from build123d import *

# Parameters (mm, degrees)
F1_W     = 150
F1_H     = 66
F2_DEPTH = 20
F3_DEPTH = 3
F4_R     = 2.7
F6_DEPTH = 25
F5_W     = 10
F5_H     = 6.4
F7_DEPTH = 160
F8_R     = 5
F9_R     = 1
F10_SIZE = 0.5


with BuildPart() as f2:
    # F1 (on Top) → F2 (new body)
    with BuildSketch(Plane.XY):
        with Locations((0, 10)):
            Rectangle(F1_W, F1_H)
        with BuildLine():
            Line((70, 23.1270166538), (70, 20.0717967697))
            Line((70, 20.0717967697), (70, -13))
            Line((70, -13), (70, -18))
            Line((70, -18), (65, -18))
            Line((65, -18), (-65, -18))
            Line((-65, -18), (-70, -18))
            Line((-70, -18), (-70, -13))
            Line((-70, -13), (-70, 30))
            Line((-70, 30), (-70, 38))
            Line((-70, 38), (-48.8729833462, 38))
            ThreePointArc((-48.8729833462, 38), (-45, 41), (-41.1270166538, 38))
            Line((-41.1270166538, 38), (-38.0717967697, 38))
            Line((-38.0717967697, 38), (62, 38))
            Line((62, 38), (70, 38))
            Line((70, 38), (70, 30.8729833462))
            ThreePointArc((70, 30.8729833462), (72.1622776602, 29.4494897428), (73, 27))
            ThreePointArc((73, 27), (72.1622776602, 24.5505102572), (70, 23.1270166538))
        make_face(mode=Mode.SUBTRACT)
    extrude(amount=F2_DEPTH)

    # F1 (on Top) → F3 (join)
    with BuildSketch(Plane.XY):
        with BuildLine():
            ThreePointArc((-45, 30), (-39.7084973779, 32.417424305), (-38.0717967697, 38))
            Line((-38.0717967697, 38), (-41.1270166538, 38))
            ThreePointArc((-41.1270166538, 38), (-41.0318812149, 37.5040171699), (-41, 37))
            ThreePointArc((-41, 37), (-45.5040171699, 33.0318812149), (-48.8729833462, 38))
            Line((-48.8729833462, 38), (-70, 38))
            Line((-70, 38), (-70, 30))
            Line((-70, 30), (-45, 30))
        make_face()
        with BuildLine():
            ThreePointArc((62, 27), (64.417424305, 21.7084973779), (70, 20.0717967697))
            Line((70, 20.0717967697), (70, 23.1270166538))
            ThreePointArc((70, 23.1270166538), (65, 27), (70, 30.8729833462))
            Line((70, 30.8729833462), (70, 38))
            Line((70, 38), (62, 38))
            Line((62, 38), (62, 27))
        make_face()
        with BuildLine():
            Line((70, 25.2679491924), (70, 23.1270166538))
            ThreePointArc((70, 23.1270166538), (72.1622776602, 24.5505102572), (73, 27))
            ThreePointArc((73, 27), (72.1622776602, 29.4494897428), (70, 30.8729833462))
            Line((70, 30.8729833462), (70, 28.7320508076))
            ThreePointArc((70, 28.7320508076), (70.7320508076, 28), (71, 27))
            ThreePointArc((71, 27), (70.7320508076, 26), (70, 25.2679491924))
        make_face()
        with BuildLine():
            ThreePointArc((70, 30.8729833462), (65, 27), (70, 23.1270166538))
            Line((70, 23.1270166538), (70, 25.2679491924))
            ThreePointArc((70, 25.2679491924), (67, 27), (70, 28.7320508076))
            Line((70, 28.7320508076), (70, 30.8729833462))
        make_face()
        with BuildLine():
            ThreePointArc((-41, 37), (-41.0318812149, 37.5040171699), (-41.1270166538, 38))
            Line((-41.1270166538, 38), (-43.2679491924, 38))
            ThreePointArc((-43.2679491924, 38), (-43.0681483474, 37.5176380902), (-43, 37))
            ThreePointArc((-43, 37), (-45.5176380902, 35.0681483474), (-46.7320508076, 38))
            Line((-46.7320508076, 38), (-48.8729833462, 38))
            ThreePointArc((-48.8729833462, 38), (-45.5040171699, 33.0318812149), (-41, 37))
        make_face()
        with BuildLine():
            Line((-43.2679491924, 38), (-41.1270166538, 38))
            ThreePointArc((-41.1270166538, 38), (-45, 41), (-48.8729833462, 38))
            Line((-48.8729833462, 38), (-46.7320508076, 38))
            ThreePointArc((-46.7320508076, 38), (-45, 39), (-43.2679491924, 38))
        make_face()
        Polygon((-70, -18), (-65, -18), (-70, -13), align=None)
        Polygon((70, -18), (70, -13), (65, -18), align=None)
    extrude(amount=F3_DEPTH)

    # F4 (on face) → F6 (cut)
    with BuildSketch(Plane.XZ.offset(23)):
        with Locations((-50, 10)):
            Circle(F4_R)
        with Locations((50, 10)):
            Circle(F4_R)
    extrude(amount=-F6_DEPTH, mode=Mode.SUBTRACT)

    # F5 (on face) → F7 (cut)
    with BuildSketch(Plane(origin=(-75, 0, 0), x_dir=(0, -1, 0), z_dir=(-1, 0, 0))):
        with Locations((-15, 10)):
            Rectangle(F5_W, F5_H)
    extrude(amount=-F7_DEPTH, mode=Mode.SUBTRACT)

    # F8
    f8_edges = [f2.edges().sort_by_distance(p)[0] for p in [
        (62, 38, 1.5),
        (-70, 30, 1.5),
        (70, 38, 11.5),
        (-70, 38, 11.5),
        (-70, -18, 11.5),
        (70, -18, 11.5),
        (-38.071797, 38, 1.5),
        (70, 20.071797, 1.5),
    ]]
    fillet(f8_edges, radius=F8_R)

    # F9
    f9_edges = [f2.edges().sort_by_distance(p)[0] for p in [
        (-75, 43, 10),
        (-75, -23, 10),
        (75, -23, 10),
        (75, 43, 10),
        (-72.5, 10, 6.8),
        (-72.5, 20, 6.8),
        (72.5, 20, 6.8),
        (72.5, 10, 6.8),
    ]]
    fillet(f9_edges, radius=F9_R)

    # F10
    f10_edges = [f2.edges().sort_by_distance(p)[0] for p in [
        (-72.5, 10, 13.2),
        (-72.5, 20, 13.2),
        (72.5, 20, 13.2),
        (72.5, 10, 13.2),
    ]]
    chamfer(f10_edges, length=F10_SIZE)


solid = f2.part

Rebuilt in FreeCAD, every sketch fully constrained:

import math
import FreeCAD as App
import Part
import Sketcher

V = App.Vector
Q = App.Units.Quantity


def edges_at(feature, points):
    """Names of the edges that pass closest to the given points."""
    edges = feature.Shape.Edges
    near = lambda p: min(range(len(edges)), key=lambda i: edges[i].distToShape(Part.Vertex(*p))[0])
    return sorted({f"Edge{near(p) + 1}" for p in points})


def add_polygon(sketch, points):
    """Adds a closed chain of lines whose ends are joined by coincident constraints."""
    first, n = sketch.GeometryCount, len(points)
    for a, b in zip(points, points[1:] + points[:1]):
        sketch.addGeometry(Part.LineSegment(App.Vector(*a, 0), App.Vector(*b, 0)), False)
    for i in range(n):
        sketch.addConstraint(Sketcher.Constraint("Coincident", first + i, 2, first + (i + 1) % n, 1))

doc = App.newDocument("Part")
body = doc.addObject("PartDesign::Body", "Body")

# Sketch on XY plane
sketch1 = body.newObject("Sketcher::SketchObject", "Sketch")
sketch1.AttachmentSupport = (doc.getObject("XY_Plane"), [""])
sketch1.MapMode = "FlatFace"
add_polygon(sketch1, [(-75, 43), (-75, -23), (75, -23), (75, 43)])  # lines 0-3
sketch1.addGeometry(Part.ArcOfCircle(Part.Circle(V(69, 27, 0), V(0, 0, 1), 4), math.radians(-76), math.radians(0)), False)  # 4
sketch1.addGeometry(Part.LineSegment(V(70, 23.1, 0), V(70, -18, 0)), False)  # 5
sketch1.addGeometry(Part.LineSegment(V(70, -18, 0), V(-70, -18, 0)), False)  # 6
sketch1.addGeometry(Part.LineSegment(V(-70, -18, 0), V(-70, 38, 0)), False)  # 7
sketch1.addGeometry(Part.LineSegment(V(-70, 38, 0), V(-48.9, 38, 0)), False)  # 8
sketch1.addGeometry(Part.ArcOfCircle(Part.Circle(V(-45, 37, 0), V(0, 0, 1), 4), math.radians(14), math.radians(166)), False)  # 9
sketch1.addGeometry(Part.LineSegment(V(-41.1, 38, 0), V(70, 38, 0)), False)  # 10
sketch1.addGeometry(Part.LineSegment(V(70, 38, 0), V(70, 30.9, 0)), False)  # 11
sketch1.addGeometry(Part.ArcOfCircle(Part.Circle(V(69, 27, 0), V(0, 0, 1), 4), math.radians(0), math.radians(76)), False)  # 12
sketch1.addConstraint(Sketcher.Constraint("Coincident", 4, 1, 5, 1))
sketch1.addConstraint(Sketcher.Constraint("Coincident", 5, 2, 6, 1))
sketch1.addConstraint(Sketcher.Constraint("Coincident", 6, 2, 7, 1))
sketch1.addConstraint(Sketcher.Constraint("Coincident", 7, 2, 8, 1))
sketch1.addConstraint(Sketcher.Constraint("Coincident", 8, 2, 9, 2))
sketch1.addConstraint(Sketcher.Constraint("Coincident", 9, 1, 10, 1))
sketch1.addConstraint(Sketcher.Constraint("Coincident", 10, 2, 11, 1))
sketch1.addConstraint(Sketcher.Constraint("Coincident", 11, 2, 12, 2))
sketch1.addConstraint(Sketcher.Constraint("Tangent", 12, 1, 4, 2))
sketch1.addConstraint(Sketcher.Constraint("Vertical", 0))
sketch1.addConstraint(Sketcher.Constraint("Horizontal", 1))
sketch1.addConstraint(Sketcher.Constraint("Vertical", 2))
sketch1.addConstraint(Sketcher.Constraint("Horizontal", 3))
sketch1.addConstraint(Sketcher.Constraint("Vertical", 5))
sketch1.addConstraint(Sketcher.Constraint("Horizontal", 6))
sketch1.addConstraint(Sketcher.Constraint("Vertical", 7))
sketch1.addConstraint(Sketcher.Constraint("Horizontal", 8))
sketch1.addConstraint(Sketcher.Constraint("Horizontal", 10))
sketch1.addConstraint(Sketcher.Constraint("Vertical", 11))
sketch1.addConstraint(Sketcher.Constraint("Equal", 4, 9))
sketch1.addConstraint(Sketcher.Constraint("Equal", 9, 12))
sketch1.addConstraint(Sketcher.Constraint("Symmetric", 7, 2, 10, 2, -2))
sketch1.addConstraint(Sketcher.Constraint("Horizontal", 4, 3, 12, 1))
sketch1.addConstraint(Sketcher.Constraint("Vertical", 5, 2, 10, 2))
sketch1.addConstraint(Sketcher.Constraint("Radius", 4, Q("4 mm")))
sketch1.addConstraint(Sketcher.Constraint("DistanceX", 1, 1, 1, 2, Q("150 mm")))
sketch1.addConstraint(Sketcher.Constraint("DistanceX", 6, 2, 6, 1, Q("140 mm")))
sketch1.addConstraint(Sketcher.Constraint("DistanceY", 0, 2, 0, 1, Q("66 mm")))
sketch1.addConstraint(Sketcher.Constraint("DistanceY", 7, 1, 7, 2, Q("56 mm")))
sketch1.addConstraint(Sketcher.Constraint("DistanceX", -1, 1, 4, 3, Q("69 mm")))
sketch1.addConstraint(Sketcher.Constraint("DistanceY", -1, 1, 4, 3, Q("27 mm")))
sketch1.addConstraint(Sketcher.Constraint("DistanceX", 9, 3, -1, 1, Q("45 mm")))
sketch1.addConstraint(Sketcher.Constraint("DistanceY", -1, 1, 9, 3, Q("37 mm")))
sketch1.addConstraint(Sketcher.Constraint("DistanceX", 0, 2, -1, 1, Q("75 mm")))
sketch1.addConstraint(Sketcher.Constraint("DistanceY", 0, 2, -1, 1, Q("23 mm")))
sketch1.addConstraint(Sketcher.Constraint("DistanceY", 5, 2, -1, 1, Q("18 mm")))
pad1 = body.newObject("PartDesign::Pad", "Pad")
pad1.Profile = sketch1
pad1.Length = 20

# Sketch on XY plane
sketch2 = body.newObject("Sketcher::SketchObject", "Sketch001")
sketch2.AttachmentSupport = (doc.getObject("XY_Plane"), [""])
sketch2.MapMode = "FlatFace"
sketch2.addGeometry(Part.ArcOfCircle(Part.Circle(V(-45, 37, 0), V(0, 0, 1), 7), math.radians(-90), math.radians(8)), False)  # 0
sketch2.addGeometry(Part.LineSegment(V(-38.1, 38, 0), V(-41.1, 38, 0)), False)  # 1
sketch2.addGeometry(Part.ArcOfCircle(Part.Circle(V(-45, 37, 0), V(0, 0, 1), 4), math.radians(14), math.radians(166)), False)  # 2
sketch2.addGeometry(Part.LineSegment(V(-48.9, 38, 0), V(-70, 38, 0)), False)  # 3
sketch2.addGeometry(Part.LineSegment(V(-70, 38, 0), V(-70, 30, 0)), False)  # 4
sketch2.addGeometry(Part.LineSegment(V(-70, 30, 0), V(-45, 30, 0)), False)  # 5
sketch2.addGeometry(Part.ArcOfCircle(Part.Circle(V(-45, 37, 0), V(0, 0, 1), 2), math.radians(0), math.radians(30)), False)  # 6
sketch2.addGeometry(Part.ArcOfCircle(Part.Circle(V(-45, 37, 0), V(0, 0, 1), 2), math.radians(150), math.radians(360)), False)  # 7
sketch2.addGeometry(Part.ArcOfCircle(Part.Circle(V(-45, 37, 0), V(0, 0, 1), 2), math.radians(30), math.radians(150)), False)  # 8
sketch2.addGeometry(Part.ArcOfCircle(Part.Circle(V(69, 27, 0), V(0, 0, 1), 7), math.radians(180), math.radians(278)), False)  # 9
sketch2.addGeometry(Part.LineSegment(V(70, 20.1, 0), V(70, 23.1, 0)), False)  # 10
sketch2.addGeometry(Part.ArcOfCircle(Part.Circle(V(69, 27, 0), V(0, 0, 1), 4), math.radians(-76), math.radians(0)), False)  # 11
sketch2.addGeometry(Part.ArcOfCircle(Part.Circle(V(69, 27, 0), V(0, 0, 1), 4), math.radians(0), math.radians(76)), False)  # 12
sketch2.addGeometry(Part.LineSegment(V(70, 30.9, 0), V(70, 38, 0)), False)  # 13
sketch2.addGeometry(Part.LineSegment(V(70, 38, 0), V(62, 38, 0)), False)  # 14
sketch2.addGeometry(Part.LineSegment(V(62, 38, 0), V(62, 27, 0)), False)  # 15
sketch2.addGeometry(Part.ArcOfCircle(Part.Circle(V(69, 27, 0), V(0, 0, 1), 2), math.radians(60), math.radians(300)), False)  # 16
sketch2.addGeometry(Part.ArcOfCircle(Part.Circle(V(69, 27, 0), V(0, 0, 1), 2), math.radians(0), math.radians(60)), False)  # 17
sketch2.addGeometry(Part.ArcOfCircle(Part.Circle(V(69, 27, 0), V(0, 0, 1), 2), math.radians(-60), math.radians(0)), False)  # 18
add_polygon(sketch2, [(-70, -18), (-65, -18), (-70, -13)])  # lines 19-21
add_polygon(sketch2, [(70, -18), (70, -13), (65, -18)])  # lines 22-24
sketch2.addConstraint(Sketcher.Constraint("Coincident", 0, 2, 1, 1))
sketch2.addConstraint(Sketcher.Constraint("Coincident", 1, 2, 2, 1))
sketch2.addConstraint(Sketcher.Constraint("Coincident", 2, 2, 3, 1))
sketch2.addConstraint(Sketcher.Constraint("Coincident", 3, 2, 4, 1))
sketch2.addConstraint(Sketcher.Constraint("Coincident", 4, 2, 5, 1))
sketch2.addConstraint(Sketcher.Constraint("Tangent", 5, 2, 0, 1))
sketch2.addConstraint(Sketcher.Constraint("Tangent", 6, 1, 7, 2))
sketch2.addConstraint(Sketcher.Constraint("Tangent", 7, 1, 8, 2))
sketch2.addConstraint(Sketcher.Constraint("Tangent", 8, 1, 6, 2))
sketch2.addConstraint(Sketcher.Constraint("Coincident", 9, 2, 10, 1))
sketch2.addConstraint(Sketcher.Constraint("Coincident", 10, 2, 11, 1))
sketch2.addConstraint(Sketcher.Constraint("Tangent", 11, 2, 12, 1))
sketch2.addConstraint(Sketcher.Constraint("Coincident", 12, 2, 13, 1))
sketch2.addConstraint(Sketcher.Constraint("Coincident", 13, 2, 14, 1))
sketch2.addConstraint(Sketcher.Constraint("Coincident", 14, 2, 15, 1))
sketch2.addConstraint(Sketcher.Constraint("Tangent", 15, 2, 9, 1))
sketch2.addConstraint(Sketcher.Constraint("Tangent", 16, 1, 17, 2))
sketch2.addConstraint(Sketcher.Constraint("Tangent", 17, 1, 18, 2))
sketch2.addConstraint(Sketcher.Constraint("Tangent", 18, 1, 16, 2))
sketch2.addConstraint(Sketcher.Constraint("Horizontal", 1))
sketch2.addConstraint(Sketcher.Constraint("Horizontal", 3))
sketch2.addConstraint(Sketcher.Constraint("Vertical", 4))
sketch2.addConstraint(Sketcher.Constraint("Horizontal", 5))
sketch2.addConstraint(Sketcher.Constraint("Vertical", 10))
sketch2.addConstraint(Sketcher.Constraint("Vertical", 13))
sketch2.addConstraint(Sketcher.Constraint("Horizontal", 14))
sketch2.addConstraint(Sketcher.Constraint("Vertical", 15))
sketch2.addConstraint(Sketcher.Constraint("Horizontal", 19))
sketch2.addConstraint(Sketcher.Constraint("Vertical", 21))
sketch2.addConstraint(Sketcher.Constraint("Vertical", 22))
sketch2.addConstraint(Sketcher.Constraint("Horizontal", 24))
sketch2.addConstraint(Sketcher.Constraint("Coincident", 2, 3, 0, 3))
sketch2.addConstraint(Sketcher.Constraint("Coincident", 6, 3, 0, 3))
sketch2.addConstraint(Sketcher.Constraint("Coincident", 11, 3, 9, 3))
sketch2.addConstraint(Sketcher.Constraint("Coincident", 16, 3, 9, 3))
sketch2.addConstraint(Sketcher.Constraint("Equal", 0, 9))
sketch2.addConstraint(Sketcher.Constraint("Equal", 2, 11))
sketch2.addConstraint(Sketcher.Constraint("Equal", 11, 12))
sketch2.addConstraint(Sketcher.Constraint("Equal", 8, 16))
sketch2.addConstraint(Sketcher.Constraint("Symmetric", 3, 2, 13, 2, -2))
sketch2.addConstraint(Sketcher.Constraint("Symmetric", 20, 2, 22, 2, -2))
sketch2.addConstraint(Sketcher.Constraint("Symmetric", 19, 2, 23, 2, -2))
sketch2.addConstraint(Sketcher.Constraint("Perpendicular", 20, 23))
sketch2.addConstraint(Sketcher.Constraint("Horizontal", 1, 2, 2, 2))
sketch2.addConstraint(Sketcher.Constraint("Horizontal", 8, 3, 6, 1))
sketch2.addConstraint(Sketcher.Constraint("Horizontal", 3, 2, 7, 1))
sketch2.addConstraint(Sketcher.Constraint("Horizontal", 7, 1, 8, 1))
sketch2.addConstraint(Sketcher.Constraint("Horizontal", 18, 3, 11, 2))
sketch2.addConstraint(Sketcher.Constraint("Horizontal", 15, 2, 17, 1))
sketch2.addConstraint(Sketcher.Constraint("Vertical", 10, 2, 12, 2))
sketch2.addConstraint(Sketcher.Constraint("Vertical", 13, 2, 16, 1))
sketch2.addConstraint(Sketcher.Constraint("Vertical", 16, 1, 18, 1))
sketch2.addConstraint(Sketcher.Constraint("Vertical", 4, 2, 20, 2))
sketch2.addConstraint(Sketcher.Constraint("Equal", 14, 4))
sketch2.addConstraint(Sketcher.Constraint("Radius", 0, Q("7 mm")))
sketch2.addConstraint(Sketcher.Constraint("Radius", 2, Q("4 mm")))
sketch2.addConstraint(Sketcher.Constraint("Radius", 6, Q("2 mm")))
sketch2.addConstraint(Sketcher.Constraint("DistanceX", 5, 1, 5, 2, Q("25 mm")))
sketch2.addConstraint(Sketcher.Constraint("DistanceX", 14, 2, 14, 1, Q("8 mm")))
sketch2.addConstraint(Sketcher.Constraint("DistanceX", 19, 1, 19, 2, Q("5 mm")))
sketch2.addConstraint(Sketcher.Constraint("DistanceY", 15, 2, 15, 1, Q("11 mm")))
sketch2.addConstraint(Sketcher.Constraint("DistanceX", 0, 3, -1, 1, Q("45 mm")))
sketch2.addConstraint(Sketcher.Constraint("DistanceY", -1, 1, 0, 3, Q("37 mm")))
sketch2.addConstraint(Sketcher.Constraint("DistanceY", 19, 2, -1, 1, Q("18 mm")))
pad2 = body.newObject("PartDesign::Pad", "Pad001")
pad2.Profile = sketch2
pad2.Length = 3

# Sketch on XZ plane
sketch3 = body.newObject("Sketcher::SketchObject", "Sketch002")
sketch3.AttachmentSupport = (doc.getObject("XZ_Plane"), [""])
sketch3.MapMode = "FlatFace"
sketch3.AttachmentOffset = App.Placement(V(0, 0, 23), App.Rotation())
sketch3.addGeometry(Part.Circle(V(-50, 10, 0), V(0, 0, 1), 2.7), False)
sketch3.addGeometry(Part.Circle(V(50, 10, 0), V(0, 0, 1), 2.7), False)
sketch3.addConstraint(Sketcher.Constraint("Equal", 0, 1))
sketch3.addConstraint(Sketcher.Constraint("Symmetric", 0, 3, 1, 3, -2))
sketch3.addConstraint(Sketcher.Constraint("Diameter", 0, Q("5.4 mm")))
sketch3.addConstraint(Sketcher.Constraint("DistanceX", 0, 3, -1, 1, Q("50 mm")))
sketch3.addConstraint(Sketcher.Constraint("DistanceY", -1, 1, 0, 3, Q("10 mm")))
pocket1 = body.newObject("PartDesign::Pocket", "Pocket")
pocket1.Profile = sketch3
pocket1.Length = 25

# Sketch on YZ plane
sketch4 = body.newObject("Sketcher::SketchObject", "Sketch003")
sketch4.AttachmentSupport = (doc.getObject("YZ_Plane"), [""])
sketch4.MapMode = "FlatFace"
sketch4.AttachmentOffset = App.Placement(V(0, 0, -75), App.Rotation())
add_polygon(sketch4, [(20, 13), (20, 7), (10, 7), (10, 13)])  # lines 0-3
sketch4.addConstraint(Sketcher.Constraint("Vertical", 0))
sketch4.addConstraint(Sketcher.Constraint("Horizontal", 1))
sketch4.addConstraint(Sketcher.Constraint("Vertical", 2))
sketch4.addConstraint(Sketcher.Constraint("Horizontal", 3))
sketch4.addConstraint(Sketcher.Constraint("DistanceX", 1, 2, 1, 1, Q("10 mm")))
sketch4.addConstraint(Sketcher.Constraint("DistanceY", 0, 2, 0, 1, Q("6.4 mm")))
sketch4.addConstraint(Sketcher.Constraint("DistanceX", -1, 1, 0, 2, Q("20 mm")))
sketch4.addConstraint(Sketcher.Constraint("DistanceY", -1, 1, 0, 2, Q("6.8 mm")))
pocket2 = body.newObject("PartDesign::Pocket", "Pocket001")
pocket2.Profile = sketch4
pocket2.Length = 160
pocket2.Reversed = True
doc.recompute()

fillet = body.newObject("PartDesign::Fillet", "Fillet")
fillet.Base = (pocket2, edges_at(pocket2, [
    (62, 38, 1.5),
    (-70, 30, 1.5),
    (70, 38, 11.5),
    (-70, 38, 11.5),
    (-70, -18, 11.5),
    (70, -18, 11.5),
    (-38.072, 38, 1.5),
    (70, 20.072, 1.5),
]))
fillet.Radius = 5
doc.recompute()

fillet2 = body.newObject("PartDesign::Fillet", "Fillet001")
fillet2.Base = (fillet, edges_at(fillet, [
    (-75, 43, 10),
    (-75, -23, 10),
    (75, -23, 10),
    (75, 43, 10),
    (-72.5, 10, 6.8),
    (-72.5, 20, 6.8),
    (72.5, 20, 6.8),
    (72.5, 10, 6.8),
]))
fillet2.Radius = 1
doc.recompute()

chamfer = body.newObject("PartDesign::Chamfer", "Chamfer")
chamfer.Base = (fillet2, edges_at(fillet2, [
    (-72.5, 10, 13.2),
    (-72.5, 20, 13.2),
    (72.5, 20, 13.2),
    (72.5, 10, 13.2),
]))
chamfer.Size = 0.5

doc.recompute()
